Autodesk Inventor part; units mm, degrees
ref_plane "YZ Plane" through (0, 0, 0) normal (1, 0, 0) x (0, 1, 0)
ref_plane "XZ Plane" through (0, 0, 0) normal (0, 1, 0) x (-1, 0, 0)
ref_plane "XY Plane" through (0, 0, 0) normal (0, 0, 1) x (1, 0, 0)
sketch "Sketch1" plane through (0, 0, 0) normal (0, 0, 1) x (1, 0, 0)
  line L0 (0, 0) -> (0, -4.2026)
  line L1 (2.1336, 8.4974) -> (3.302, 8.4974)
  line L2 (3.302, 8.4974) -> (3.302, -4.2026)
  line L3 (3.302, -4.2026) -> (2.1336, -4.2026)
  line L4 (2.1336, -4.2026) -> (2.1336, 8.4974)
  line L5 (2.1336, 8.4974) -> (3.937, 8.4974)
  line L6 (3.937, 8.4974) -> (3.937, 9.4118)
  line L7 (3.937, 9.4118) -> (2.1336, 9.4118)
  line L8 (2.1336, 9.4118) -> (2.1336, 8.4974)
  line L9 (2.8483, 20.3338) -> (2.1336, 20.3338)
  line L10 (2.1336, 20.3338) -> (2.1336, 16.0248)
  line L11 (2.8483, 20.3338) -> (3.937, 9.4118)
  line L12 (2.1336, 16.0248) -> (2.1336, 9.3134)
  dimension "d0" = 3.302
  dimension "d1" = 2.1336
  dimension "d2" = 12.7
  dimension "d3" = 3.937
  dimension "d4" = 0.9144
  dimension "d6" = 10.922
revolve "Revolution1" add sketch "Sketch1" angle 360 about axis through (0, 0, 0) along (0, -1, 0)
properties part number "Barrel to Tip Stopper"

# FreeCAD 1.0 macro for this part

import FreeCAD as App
import Part
import Sketcher
from FreeCAD import Vector
Q = App.Units.Quantity


def add_polygon(sketch, points):
    """Adds a closed chain of lines whose ends are joined by coincident constraints."""
    first, n = sketch.GeometryCount, len(points)
    for a, b in zip(points, points[1:] + points[:1]):
        sketch.addGeometry(Part.LineSegment(App.Vector(*a, 0), App.Vector(*b, 0)), False)
    for i in range(n):
        sketch.addConstraint(Sketcher.Constraint("Coincident", first + i, 2, first + (i + 1) % n, 1))

doc = App.newDocument("Part")
params = doc.addObject("Spreadsheet::Sheet", "Params")
for row, (alias, value) in enumerate([
    ("sketch1_height", "0.5 in"),
    ("sketch1_height2", "0.036 in"),
    ("revolution_angle", "360 deg"),
], start=1):
    params.set(f"A{row}", alias)
    params.set(f"B{row}", "=" + value)
    params.setAlias(f"B{row}", alias)

body = doc.addObject("PartDesign::Body", "Body")

# Sketch on XY plane
sketch1 = body.newObject("Sketcher::SketchObject", "Sketch")
sketch1.AttachmentSupport = (doc.getObject("XY_Plane"), [""])
sketch1.MapMode = "FlatFace"
add_polygon(sketch1, [(2.1, -4.2), (3.3, -4.2), (3.3, 8.5), (3.9, 8.5), (3.9, 9.4), (2.8, 20.3), (2.1, 20.3)])  # lines 0-6
sketch1.addConstraint(Sketcher.Constraint("Horizontal", 0))
sketch1.addConstraint(Sketcher.Constraint("Vertical", 1))
sketch1.addConstraint(Sketcher.Constraint("Horizontal", 2))
sketch1.addConstraint(Sketcher.Constraint("Vertical", 3))
sketch1.addConstraint(Sketcher.Constraint("Horizontal", 5))
sketch1.addConstraint(Sketcher.Constraint("Vertical", 6))
sketch1.addConstraint(Sketcher.Constraint("DistanceY", 1, 1, 1, 2, Q("0.5 in")))
sketch1.addConstraint(Sketcher.Constraint("DistanceY", 3, 1, 3, 2, Q("0.036 in")))
sketch1.addConstraint(Sketcher.Constraint("DistanceX", -1, 1, 0, 2, Q("0.13 in")))
sketch1.addConstraint(Sketcher.Constraint("DistanceY", 3, 2, 4, 2, Q("0.43 in")))
sketch1.addConstraint(Sketcher.Constraint("DistanceX", -1, 1, 2, 2, Q("0.155 in")))
sketch1.addConstraint(Sketcher.Constraint("DistanceX", -1, 1, 5, 2, Q("0.084 in")))
sketch1.addConstraint(Sketcher.Constraint("DistanceX", 5, 2, 5, 1, Q("0.7147 mm")))
sketch1.addConstraint(Sketcher.Constraint("DistanceY", 0, 2, -1, 1, Q("4.2026 mm")))
sketch1.setExpression("Constraints[13]", "Params.sketch1_height")
sketch1.setExpression("Constraints[14]", "Params.sketch1_height2")
revolution = body.newObject("PartDesign::Revolution", "Revolution")
revolution.Profile = sketch1
revolution.ReferenceAxis = (sketch1, ["V_Axis"])
revolution.setExpression("Angle", "Params.revolution_angle")

doc.recompute()
